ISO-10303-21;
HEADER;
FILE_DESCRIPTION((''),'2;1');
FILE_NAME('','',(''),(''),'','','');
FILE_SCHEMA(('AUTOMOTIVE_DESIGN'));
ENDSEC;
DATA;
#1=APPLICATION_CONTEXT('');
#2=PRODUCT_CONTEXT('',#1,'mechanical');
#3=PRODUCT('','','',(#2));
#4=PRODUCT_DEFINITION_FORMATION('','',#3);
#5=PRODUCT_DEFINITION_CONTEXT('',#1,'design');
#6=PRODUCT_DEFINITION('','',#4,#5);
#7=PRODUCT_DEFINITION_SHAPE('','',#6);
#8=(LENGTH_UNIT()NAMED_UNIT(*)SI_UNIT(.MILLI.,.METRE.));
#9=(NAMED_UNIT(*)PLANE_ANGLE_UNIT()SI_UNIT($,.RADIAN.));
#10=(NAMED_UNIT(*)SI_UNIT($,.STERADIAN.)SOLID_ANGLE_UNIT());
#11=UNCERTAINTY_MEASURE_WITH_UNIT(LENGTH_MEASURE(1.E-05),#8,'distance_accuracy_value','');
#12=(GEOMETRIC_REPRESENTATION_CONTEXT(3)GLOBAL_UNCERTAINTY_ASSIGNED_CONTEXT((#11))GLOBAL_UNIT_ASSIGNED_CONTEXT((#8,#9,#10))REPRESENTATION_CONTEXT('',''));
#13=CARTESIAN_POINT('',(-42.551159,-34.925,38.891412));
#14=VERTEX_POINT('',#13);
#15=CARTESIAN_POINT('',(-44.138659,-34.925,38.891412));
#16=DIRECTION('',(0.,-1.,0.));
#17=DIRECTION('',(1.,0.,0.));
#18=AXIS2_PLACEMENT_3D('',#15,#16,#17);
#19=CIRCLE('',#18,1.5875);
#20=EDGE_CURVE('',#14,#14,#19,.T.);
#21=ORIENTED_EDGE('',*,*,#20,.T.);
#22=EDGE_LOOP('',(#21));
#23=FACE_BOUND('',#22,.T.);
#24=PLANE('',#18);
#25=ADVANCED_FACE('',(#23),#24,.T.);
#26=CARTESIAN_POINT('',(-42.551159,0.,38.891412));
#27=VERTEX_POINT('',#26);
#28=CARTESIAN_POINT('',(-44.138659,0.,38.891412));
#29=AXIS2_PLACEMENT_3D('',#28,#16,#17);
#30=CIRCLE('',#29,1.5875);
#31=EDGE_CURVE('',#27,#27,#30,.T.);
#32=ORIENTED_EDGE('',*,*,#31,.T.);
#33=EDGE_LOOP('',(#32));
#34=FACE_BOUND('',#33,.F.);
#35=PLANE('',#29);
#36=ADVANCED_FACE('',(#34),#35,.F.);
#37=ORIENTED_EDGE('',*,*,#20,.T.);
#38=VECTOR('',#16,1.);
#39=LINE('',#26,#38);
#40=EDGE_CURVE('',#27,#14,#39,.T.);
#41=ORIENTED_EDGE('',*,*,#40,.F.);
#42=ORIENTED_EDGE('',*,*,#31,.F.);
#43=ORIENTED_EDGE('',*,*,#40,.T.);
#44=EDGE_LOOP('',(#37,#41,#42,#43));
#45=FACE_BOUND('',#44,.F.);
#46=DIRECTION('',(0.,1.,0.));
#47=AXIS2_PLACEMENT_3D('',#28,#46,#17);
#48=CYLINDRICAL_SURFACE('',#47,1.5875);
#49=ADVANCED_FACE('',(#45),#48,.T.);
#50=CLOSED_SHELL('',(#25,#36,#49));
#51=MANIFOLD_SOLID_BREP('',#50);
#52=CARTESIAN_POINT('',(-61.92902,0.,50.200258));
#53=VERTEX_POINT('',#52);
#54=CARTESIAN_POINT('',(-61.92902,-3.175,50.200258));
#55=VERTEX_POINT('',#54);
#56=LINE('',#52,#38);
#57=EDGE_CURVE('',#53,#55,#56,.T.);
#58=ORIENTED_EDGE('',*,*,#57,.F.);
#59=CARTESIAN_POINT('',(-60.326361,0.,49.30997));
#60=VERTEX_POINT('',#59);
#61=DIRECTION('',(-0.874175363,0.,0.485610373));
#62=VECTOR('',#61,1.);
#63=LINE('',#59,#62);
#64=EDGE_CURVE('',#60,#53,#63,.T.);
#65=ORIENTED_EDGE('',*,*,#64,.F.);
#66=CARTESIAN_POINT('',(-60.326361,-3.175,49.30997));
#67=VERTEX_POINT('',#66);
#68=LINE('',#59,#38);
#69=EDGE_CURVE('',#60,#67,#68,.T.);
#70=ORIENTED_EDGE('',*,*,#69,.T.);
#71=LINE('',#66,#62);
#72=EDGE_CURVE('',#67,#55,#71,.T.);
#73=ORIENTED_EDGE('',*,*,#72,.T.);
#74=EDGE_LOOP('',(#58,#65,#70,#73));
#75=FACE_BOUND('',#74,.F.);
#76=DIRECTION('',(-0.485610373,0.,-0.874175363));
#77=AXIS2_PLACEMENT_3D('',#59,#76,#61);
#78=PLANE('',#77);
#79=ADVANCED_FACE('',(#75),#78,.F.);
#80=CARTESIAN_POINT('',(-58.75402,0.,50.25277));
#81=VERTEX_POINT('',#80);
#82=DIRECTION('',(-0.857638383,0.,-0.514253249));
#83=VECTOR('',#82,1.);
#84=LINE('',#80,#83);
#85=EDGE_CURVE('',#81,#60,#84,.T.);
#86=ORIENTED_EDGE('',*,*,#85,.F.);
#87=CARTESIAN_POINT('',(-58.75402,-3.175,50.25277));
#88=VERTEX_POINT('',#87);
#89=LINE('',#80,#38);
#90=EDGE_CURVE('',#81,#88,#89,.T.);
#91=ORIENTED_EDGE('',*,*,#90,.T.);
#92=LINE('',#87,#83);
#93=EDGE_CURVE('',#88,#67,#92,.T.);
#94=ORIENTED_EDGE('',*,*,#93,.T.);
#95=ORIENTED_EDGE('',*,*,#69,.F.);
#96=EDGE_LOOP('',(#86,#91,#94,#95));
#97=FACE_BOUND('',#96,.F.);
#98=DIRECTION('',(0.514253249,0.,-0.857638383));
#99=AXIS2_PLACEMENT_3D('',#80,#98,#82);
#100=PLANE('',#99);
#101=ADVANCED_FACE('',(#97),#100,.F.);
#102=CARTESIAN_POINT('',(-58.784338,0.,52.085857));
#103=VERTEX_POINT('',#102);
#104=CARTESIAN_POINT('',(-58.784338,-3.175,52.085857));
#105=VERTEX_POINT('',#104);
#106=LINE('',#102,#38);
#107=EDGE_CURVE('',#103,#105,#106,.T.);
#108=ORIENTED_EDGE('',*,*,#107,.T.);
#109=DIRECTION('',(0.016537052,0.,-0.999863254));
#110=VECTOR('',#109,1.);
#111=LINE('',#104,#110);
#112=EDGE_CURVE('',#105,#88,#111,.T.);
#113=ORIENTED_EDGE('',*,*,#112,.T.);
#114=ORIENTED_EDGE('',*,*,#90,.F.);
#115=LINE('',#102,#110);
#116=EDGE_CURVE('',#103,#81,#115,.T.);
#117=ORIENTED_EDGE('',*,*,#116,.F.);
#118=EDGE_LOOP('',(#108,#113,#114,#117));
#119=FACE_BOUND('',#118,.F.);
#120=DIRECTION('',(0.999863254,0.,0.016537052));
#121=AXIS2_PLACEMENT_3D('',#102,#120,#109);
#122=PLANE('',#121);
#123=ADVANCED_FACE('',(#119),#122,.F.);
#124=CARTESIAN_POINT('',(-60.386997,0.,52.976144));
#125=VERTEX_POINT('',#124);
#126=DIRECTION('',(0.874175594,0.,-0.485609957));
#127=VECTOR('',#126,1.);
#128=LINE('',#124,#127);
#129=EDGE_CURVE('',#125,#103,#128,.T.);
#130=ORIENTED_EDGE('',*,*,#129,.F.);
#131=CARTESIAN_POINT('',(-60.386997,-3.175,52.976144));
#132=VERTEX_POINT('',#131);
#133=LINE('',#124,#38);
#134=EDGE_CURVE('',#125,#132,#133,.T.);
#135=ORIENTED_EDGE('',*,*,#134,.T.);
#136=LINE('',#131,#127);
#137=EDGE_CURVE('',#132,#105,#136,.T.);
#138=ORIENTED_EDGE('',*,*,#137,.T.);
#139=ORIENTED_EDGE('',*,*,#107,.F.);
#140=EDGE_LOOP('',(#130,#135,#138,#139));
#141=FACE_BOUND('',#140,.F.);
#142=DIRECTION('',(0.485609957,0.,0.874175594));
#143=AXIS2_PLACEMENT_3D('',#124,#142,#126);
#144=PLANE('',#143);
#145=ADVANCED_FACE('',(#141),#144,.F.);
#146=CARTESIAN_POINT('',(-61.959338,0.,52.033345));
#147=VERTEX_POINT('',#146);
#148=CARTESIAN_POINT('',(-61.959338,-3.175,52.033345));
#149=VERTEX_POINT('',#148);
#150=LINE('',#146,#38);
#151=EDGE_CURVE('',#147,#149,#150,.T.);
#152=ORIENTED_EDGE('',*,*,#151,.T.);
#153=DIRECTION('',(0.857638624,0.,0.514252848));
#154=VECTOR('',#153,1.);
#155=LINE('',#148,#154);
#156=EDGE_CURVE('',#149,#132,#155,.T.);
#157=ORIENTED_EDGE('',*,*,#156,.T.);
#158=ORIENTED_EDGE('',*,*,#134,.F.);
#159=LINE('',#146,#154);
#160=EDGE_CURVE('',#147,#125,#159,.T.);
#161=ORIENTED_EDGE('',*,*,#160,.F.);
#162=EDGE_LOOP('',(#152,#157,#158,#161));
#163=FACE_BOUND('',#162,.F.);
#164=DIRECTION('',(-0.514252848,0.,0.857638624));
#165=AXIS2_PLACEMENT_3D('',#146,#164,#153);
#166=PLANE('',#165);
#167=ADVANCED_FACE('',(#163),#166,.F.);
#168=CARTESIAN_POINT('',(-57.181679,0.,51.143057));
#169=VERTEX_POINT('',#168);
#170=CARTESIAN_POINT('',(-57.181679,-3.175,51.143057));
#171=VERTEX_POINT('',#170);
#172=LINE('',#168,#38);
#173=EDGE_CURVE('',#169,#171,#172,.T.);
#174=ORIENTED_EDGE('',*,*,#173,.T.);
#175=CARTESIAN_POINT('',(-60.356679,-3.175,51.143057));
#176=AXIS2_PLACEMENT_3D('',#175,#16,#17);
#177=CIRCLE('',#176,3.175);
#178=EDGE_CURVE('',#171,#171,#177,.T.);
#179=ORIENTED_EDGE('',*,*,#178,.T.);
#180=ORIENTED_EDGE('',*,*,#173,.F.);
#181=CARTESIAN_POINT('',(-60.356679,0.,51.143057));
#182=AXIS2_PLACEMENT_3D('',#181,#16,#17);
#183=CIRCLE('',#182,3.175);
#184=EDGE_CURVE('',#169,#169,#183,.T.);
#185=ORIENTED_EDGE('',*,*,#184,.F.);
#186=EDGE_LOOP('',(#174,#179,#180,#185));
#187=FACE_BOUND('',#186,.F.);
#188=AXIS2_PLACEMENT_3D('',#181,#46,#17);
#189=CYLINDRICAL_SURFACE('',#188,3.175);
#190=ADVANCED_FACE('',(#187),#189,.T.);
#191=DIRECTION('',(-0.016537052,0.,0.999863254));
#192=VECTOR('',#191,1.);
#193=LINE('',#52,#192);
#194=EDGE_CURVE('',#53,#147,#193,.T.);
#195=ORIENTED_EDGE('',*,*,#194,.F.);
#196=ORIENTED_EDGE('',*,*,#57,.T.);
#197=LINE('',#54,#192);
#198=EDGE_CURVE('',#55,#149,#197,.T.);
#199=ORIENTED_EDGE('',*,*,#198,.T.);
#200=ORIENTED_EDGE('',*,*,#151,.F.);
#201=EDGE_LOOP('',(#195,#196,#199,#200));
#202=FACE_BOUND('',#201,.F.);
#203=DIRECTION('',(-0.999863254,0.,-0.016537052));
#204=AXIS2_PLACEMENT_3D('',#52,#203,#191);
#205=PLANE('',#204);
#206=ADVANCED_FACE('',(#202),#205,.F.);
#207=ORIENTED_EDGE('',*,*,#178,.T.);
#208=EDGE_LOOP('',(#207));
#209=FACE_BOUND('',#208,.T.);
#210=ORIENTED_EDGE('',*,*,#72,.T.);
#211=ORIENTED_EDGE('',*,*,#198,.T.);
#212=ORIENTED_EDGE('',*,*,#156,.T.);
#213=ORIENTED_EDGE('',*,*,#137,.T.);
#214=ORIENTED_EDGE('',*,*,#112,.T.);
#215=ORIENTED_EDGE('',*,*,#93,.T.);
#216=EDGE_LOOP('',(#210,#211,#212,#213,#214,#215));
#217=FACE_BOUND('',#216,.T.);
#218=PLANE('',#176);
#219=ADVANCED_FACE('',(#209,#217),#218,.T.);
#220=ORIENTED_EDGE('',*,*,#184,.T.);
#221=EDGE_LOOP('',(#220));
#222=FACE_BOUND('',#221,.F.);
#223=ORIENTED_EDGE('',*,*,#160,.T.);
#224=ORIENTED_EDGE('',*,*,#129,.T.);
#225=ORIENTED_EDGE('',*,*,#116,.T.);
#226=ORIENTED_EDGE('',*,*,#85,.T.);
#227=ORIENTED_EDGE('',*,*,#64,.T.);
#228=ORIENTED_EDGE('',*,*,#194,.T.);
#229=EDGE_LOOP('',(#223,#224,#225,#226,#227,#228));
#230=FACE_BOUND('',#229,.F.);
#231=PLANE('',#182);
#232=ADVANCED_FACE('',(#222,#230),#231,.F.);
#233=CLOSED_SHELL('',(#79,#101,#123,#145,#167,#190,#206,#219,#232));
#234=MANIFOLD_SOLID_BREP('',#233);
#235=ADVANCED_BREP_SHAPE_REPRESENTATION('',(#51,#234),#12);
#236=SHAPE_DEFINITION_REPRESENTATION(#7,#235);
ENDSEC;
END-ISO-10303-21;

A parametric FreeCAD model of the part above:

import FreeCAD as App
import Part
import Sketcher

V = App.Vector
Q = App.Units.Quantity

doc = App.newDocument("Part")
params = doc.addObject("Spreadsheet::Sheet", "Params")
for row, (alias, value) in enumerate([
    ("sketch1_diameter", "0.25 in"),
    ("pad1_length", "0.125 in"),
    ("sketch2_diameter", "0.125 in"),
    ("pad2_length", "1.375 in"),
], start=1):
    params.set(f"A{row}", alias)
    params.set(f"B{row}", "=" + value)
    params.setAlias(f"B{row}", alias)

body = doc.addObject("PartDesign::Body", "Body")

# Sketch on XZ plane
sketch1 = body.newObject("Sketcher::SketchObject", "Sketch")
sketch1.AttachmentSupport = (doc.getObject("XZ_Plane"), [""])
sketch1.MapMode = "FlatFace"
sketch1.addGeometry([
    Part.Circle(V(-60.356679, 51.143057, 0), V(0, 0, 1), 3.175),  # 0
    Part.LineSegment(V(-61.92902, 50.200258, 0), V(-61.959338, 52.033345, 0)),  # 1
    Part.LineSegment(V(-61.959338, 52.033345, 0), V(-60.386997, 52.976144, 0)),  # 2
    Part.LineSegment(V(-60.386997, 52.976144, 0), V(-58.784338, 52.085857, 0)),  # 3
    Part.LineSegment(V(-58.784338, 52.085857, 0), V(-58.75402, 50.25277, 0)),  # 4
    Part.LineSegment(V(-58.75402, 50.25277, 0), V(-60.326361, 49.30997, 0)),  # 5
    Part.LineSegment(V(-60.326361, 49.30997, 0), V(-61.92902, 50.200258, 0)),  # 6
], False)
sketch1.addConstraint([
    Sketcher.Constraint("Coincident", 1, 2, 2, 1),
    Sketcher.Constraint("Coincident", 2, 2, 3, 1),
    Sketcher.Constraint("Coincident", 3, 2, 4, 1),
    Sketcher.Constraint("Coincident", 4, 2, 5, 1),
    Sketcher.Constraint("Coincident", 5, 2, 6, 1),
    Sketcher.Constraint("Coincident", 6, 2, 1, 1),
    Sketcher.Constraint("Diameter", 0, Q("0.25 in")),
    Sketcher.Constraint("DistanceX", 1, 2, 3, 2, Q("0.125 in")),
    Sketcher.Constraint("DistanceX", 6, 2, 4, 2, Q("0.125 in")),
    Sketcher.Constraint("DistanceY", 1, 2, 2, 2, 0.942799),
    Sketcher.Constraint("DistanceY", 0, 3, 3, 2, 0.9428),
    Sketcher.Constraint("DistanceY", 5, 2, 4, 2, 0.9428),
    Sketcher.Constraint("DistanceY", 6, 2, 0, 3, 0.942799),
    Sketcher.Constraint("Distance", 6, 1.833338),
    Sketcher.Constraint("DistanceX", 0, 3, -1, 1, 60.356679),
    Sketcher.Constraint("DistanceX", 1, 2, -1, 1, 61.959338),
    Sketcher.Constraint("DistanceX", 4, 2, -1, 1, 58.75402),
    Sketcher.Constraint("DistanceY", -1, 1, 4, 2, 50.25277),
    Sketcher.Constraint("DistanceX", 5, 2, -1, 1, 60.326361),
    Sketcher.Constraint("DistanceX", 1, 2, 2, 2, 1.572341),
    Sketcher.Constraint("Distance", 1, 1.833338),
])
sketch1.setExpression("Constraints[6]", "Params.sketch1_diameter")
pad1 = body.newObject("PartDesign::Pad", "Pad")
pad1.Profile = sketch1
pad1.setExpression("Length", "Params.pad1_length")
body2 = doc.addObject("PartDesign::Body", "Body001")

# Sketch on XZ plane
sketch2 = body2.newObject("Sketcher::SketchObject", "Sketch001")
sketch2.AttachmentSupport = (doc.getObject("XZ_Plane001"), [""])
sketch2.MapMode = "FlatFace"
sketch2.addGeometry(Part.Circle(V(-44.1, 38.9, 0), V(0, 0, 1), 1.6), False)
sketch2.addConstraint([
    Sketcher.Constraint("Diameter", 0, Q("0.125 in")),
    Sketcher.Constraint("DistanceX", 0, 3, -1, 1, 44.138659),
    Sketcher.Constraint("DistanceY", -1, 1, 0, 3, 38.891412),
])
sketch2.setExpression("Constraints[0]", "Params.sketch2_diameter")
pad2 = body2.newObject("PartDesign::Pad", "Pad001")
pad2.Profile = sketch2
pad2.setExpression("Length", "Params.pad2_length")

doc.recompute()
